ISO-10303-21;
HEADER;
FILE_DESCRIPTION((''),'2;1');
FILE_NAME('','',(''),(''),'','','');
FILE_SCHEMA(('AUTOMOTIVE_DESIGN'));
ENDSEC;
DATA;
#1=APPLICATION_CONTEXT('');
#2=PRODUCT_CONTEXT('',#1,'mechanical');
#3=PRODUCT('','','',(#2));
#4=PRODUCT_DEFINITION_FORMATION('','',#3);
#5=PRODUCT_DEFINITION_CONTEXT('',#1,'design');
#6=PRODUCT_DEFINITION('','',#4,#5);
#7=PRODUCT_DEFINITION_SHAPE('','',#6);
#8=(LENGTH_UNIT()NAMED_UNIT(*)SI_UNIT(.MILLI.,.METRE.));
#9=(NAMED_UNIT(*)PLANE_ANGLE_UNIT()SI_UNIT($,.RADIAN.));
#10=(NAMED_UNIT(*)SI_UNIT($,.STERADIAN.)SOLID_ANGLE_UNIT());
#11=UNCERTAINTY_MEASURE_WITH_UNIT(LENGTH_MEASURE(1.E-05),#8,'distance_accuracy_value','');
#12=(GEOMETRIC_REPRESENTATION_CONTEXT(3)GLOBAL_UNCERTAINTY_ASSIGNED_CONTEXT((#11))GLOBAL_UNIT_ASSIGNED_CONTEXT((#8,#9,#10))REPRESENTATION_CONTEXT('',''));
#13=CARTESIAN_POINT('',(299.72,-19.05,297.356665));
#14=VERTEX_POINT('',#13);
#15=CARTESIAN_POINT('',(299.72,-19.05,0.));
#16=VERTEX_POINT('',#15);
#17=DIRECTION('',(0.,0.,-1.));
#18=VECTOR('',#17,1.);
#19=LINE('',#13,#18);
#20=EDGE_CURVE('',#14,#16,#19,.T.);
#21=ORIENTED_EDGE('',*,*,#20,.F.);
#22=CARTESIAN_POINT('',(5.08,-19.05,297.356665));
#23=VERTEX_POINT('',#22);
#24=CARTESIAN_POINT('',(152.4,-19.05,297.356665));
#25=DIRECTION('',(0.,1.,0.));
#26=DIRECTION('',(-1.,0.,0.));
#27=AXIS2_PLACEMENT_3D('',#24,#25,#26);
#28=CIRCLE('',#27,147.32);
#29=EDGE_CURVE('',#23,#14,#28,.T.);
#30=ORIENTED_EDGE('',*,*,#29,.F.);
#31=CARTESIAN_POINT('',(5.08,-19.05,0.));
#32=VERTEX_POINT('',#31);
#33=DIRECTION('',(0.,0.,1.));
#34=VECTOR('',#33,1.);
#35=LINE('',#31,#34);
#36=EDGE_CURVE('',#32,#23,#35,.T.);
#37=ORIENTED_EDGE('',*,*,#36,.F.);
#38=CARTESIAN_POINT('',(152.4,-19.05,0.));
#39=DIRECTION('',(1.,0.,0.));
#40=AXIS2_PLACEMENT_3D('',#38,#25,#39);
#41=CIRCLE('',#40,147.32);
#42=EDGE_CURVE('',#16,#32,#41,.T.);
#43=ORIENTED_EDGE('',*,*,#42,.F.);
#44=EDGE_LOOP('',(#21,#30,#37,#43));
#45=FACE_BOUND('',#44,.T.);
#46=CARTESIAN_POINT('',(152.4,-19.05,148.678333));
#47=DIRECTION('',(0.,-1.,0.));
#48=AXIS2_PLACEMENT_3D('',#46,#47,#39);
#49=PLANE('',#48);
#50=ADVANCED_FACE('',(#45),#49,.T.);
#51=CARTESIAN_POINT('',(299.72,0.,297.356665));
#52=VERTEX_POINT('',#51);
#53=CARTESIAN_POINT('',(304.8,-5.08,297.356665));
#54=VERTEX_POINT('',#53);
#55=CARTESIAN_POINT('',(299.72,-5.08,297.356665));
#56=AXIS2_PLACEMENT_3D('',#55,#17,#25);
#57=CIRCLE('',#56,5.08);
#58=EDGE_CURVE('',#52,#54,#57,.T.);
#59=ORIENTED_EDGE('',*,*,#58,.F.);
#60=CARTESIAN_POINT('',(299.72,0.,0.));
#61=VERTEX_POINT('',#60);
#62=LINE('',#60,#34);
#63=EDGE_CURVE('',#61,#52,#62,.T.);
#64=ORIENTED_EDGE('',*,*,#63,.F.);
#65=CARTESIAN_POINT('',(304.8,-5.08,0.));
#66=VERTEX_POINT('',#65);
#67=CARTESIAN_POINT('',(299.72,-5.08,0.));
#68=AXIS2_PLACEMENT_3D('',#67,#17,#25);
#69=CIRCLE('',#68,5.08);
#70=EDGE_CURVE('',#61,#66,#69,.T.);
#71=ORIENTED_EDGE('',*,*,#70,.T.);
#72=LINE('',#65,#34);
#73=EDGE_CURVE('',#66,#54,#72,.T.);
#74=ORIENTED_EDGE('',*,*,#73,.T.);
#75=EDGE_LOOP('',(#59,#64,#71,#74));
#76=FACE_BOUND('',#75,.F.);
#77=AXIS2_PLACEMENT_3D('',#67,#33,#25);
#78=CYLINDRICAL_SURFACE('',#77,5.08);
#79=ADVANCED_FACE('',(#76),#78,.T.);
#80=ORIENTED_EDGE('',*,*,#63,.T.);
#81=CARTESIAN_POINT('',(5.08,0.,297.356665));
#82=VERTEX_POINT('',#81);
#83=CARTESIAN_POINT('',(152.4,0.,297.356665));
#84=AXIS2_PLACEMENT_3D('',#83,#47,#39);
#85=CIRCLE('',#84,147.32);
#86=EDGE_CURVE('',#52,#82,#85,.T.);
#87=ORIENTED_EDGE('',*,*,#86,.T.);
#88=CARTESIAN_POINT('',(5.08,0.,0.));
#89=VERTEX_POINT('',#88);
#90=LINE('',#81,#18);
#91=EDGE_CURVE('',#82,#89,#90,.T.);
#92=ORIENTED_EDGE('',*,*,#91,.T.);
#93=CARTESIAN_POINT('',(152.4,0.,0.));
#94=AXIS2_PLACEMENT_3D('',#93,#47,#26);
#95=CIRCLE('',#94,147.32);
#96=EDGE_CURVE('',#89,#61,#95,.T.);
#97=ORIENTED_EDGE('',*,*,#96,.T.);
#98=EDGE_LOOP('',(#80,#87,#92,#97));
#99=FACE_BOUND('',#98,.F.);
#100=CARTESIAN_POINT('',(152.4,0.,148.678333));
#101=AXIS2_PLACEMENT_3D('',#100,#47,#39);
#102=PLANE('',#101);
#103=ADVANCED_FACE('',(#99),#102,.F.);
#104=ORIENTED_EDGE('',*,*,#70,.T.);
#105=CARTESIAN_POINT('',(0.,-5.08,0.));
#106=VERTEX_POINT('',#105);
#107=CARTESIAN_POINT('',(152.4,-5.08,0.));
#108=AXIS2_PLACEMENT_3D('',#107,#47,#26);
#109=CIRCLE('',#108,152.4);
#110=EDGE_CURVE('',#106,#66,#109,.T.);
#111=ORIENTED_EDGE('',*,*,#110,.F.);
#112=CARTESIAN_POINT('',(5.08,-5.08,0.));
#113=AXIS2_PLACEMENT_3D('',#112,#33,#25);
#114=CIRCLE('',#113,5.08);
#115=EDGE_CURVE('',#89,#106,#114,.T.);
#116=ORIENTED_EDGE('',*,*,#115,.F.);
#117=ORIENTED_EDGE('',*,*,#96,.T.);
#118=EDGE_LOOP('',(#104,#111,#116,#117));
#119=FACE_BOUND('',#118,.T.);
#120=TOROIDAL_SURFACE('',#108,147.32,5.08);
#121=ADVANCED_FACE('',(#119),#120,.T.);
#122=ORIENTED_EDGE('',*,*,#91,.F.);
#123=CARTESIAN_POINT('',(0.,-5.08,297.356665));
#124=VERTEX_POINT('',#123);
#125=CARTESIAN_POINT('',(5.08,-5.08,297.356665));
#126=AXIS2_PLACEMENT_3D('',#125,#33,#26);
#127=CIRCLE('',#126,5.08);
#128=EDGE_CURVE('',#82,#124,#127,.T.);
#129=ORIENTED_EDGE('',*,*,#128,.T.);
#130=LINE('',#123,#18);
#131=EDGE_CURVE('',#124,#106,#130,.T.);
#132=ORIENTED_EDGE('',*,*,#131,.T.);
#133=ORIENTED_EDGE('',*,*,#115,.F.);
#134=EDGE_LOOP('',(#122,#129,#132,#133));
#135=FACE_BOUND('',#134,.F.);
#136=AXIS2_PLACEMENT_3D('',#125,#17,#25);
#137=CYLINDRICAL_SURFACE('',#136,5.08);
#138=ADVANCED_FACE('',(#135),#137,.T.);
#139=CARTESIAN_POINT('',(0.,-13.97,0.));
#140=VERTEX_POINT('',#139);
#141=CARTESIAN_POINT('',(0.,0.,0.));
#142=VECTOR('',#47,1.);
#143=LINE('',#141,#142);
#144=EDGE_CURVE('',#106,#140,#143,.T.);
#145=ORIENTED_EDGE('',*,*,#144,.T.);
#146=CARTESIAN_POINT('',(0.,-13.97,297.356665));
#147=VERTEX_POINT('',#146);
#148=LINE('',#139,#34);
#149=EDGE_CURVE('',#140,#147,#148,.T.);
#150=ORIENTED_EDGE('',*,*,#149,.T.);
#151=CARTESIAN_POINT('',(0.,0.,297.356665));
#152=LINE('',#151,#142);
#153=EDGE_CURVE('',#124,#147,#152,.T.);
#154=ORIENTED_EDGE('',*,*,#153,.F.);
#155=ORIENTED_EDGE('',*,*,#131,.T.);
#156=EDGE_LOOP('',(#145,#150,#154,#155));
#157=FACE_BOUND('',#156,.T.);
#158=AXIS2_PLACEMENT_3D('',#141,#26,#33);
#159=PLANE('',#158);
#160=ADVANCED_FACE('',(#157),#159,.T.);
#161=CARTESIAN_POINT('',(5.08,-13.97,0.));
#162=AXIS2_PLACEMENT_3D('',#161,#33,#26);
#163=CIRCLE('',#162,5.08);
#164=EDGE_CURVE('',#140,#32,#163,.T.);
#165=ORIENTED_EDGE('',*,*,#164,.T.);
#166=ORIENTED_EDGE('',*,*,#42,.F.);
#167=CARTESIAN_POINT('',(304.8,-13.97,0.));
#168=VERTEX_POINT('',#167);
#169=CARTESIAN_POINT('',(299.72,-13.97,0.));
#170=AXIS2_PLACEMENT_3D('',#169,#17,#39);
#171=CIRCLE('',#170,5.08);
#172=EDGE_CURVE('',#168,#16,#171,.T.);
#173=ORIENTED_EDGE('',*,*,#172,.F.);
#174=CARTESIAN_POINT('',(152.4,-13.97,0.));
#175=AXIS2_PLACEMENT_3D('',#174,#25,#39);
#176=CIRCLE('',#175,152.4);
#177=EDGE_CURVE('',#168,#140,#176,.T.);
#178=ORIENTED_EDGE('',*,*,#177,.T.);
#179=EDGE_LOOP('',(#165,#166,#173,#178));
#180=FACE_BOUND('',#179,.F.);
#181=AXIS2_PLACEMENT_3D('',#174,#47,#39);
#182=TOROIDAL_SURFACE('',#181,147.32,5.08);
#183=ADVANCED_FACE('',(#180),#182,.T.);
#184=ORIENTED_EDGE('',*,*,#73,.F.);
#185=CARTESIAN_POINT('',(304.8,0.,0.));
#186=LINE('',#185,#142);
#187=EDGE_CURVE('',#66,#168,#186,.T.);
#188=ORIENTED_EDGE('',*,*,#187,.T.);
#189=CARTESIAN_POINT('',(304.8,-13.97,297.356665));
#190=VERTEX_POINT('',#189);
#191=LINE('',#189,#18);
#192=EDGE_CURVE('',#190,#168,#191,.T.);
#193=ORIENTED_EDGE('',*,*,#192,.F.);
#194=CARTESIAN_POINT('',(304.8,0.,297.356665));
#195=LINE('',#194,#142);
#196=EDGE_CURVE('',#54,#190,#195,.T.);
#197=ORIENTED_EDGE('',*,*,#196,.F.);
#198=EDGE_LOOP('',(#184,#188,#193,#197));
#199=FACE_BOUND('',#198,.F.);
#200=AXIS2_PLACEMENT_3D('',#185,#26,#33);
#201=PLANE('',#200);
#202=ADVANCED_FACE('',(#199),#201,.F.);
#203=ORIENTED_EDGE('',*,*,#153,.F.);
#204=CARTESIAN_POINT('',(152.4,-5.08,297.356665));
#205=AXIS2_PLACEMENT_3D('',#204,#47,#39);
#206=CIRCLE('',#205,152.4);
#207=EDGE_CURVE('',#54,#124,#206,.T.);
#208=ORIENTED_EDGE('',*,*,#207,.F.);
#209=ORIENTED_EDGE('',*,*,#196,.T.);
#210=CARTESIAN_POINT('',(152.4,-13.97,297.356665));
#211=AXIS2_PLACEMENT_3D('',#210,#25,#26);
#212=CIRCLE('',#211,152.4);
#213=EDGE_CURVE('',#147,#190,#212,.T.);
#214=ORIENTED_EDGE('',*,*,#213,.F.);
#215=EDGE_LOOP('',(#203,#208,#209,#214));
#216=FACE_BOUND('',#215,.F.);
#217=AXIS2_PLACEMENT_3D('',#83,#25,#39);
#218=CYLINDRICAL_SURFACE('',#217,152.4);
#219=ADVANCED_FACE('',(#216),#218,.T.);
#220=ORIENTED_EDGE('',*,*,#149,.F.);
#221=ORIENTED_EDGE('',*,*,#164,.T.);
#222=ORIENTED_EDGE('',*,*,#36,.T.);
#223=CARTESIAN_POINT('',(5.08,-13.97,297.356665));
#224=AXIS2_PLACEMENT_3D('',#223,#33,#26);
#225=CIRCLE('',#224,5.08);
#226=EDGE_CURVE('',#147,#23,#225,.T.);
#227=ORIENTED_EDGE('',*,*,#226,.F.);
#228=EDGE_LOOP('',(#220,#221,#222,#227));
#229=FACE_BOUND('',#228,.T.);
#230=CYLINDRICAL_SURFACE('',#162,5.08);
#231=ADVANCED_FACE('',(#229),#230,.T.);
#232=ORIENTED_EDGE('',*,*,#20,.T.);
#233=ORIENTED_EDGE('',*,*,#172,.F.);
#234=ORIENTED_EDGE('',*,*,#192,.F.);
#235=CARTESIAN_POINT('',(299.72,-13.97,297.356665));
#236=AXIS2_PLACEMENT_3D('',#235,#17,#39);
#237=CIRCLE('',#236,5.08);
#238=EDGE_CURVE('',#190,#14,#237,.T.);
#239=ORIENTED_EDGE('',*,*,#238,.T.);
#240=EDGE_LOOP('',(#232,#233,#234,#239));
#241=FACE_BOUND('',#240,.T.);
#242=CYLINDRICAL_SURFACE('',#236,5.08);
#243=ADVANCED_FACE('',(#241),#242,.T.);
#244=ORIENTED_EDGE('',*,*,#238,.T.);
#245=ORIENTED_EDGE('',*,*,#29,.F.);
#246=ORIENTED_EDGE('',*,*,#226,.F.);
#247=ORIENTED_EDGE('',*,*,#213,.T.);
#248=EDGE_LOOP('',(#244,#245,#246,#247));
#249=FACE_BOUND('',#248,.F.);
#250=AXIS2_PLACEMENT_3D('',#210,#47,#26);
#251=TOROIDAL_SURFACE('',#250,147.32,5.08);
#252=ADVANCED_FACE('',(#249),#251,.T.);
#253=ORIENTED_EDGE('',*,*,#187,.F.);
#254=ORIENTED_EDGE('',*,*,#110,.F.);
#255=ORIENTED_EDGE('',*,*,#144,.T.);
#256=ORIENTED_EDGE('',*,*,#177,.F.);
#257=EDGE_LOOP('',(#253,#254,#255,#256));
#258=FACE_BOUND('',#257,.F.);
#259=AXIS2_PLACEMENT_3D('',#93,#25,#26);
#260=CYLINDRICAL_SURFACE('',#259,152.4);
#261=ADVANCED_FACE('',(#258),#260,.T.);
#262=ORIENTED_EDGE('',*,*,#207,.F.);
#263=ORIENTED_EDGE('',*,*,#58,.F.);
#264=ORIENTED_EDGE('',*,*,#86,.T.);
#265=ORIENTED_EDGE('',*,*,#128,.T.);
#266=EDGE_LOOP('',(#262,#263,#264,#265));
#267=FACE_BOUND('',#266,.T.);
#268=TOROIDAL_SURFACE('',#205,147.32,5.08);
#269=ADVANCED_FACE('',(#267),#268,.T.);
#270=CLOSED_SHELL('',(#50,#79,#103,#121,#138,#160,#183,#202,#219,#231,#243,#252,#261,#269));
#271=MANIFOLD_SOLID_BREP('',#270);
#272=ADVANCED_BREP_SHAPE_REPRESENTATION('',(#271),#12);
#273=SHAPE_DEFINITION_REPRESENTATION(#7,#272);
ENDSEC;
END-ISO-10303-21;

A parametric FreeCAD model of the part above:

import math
import FreeCAD as App
import Part
import Sketcher

V = App.Vector
Q = App.Units.Quantity


def edges_at(feature, points):
    """Names of the edges that pass closest to the given points."""
    edges = feature.Shape.Edges
    near = lambda p: min(range(len(edges)), key=lambda i: edges[i].distToShape(Part.Vertex(*p))[0])
    return sorted({f"Edge{near(p) + 1}" for p in points})

doc = App.newDocument("Part")
body = doc.addObject("PartDesign::Body", "Body")

# Sketch on XZ plane
sketch1 = doc.addObject("Sketcher::SketchObject", "Sketch")
body.addObject(sketch1)
sketch1.AttachmentSupport = (doc.XZ_Plane, [""])
sketch1.MapMode = "FlatFace"
sketch1.addGeometry([
    Part.ArcOfCircle(Part.Circle(V(152, 457, 0), V(0, 0, 1), 152), math.radians(0), math.radians(180)),
    Part.LineSegment(V(0, 457, 0), V(0, 0, 0)),
    Part.ArcOfCircle(Part.Circle(V(152, 0, 0), V(0, 0, 1), 152), math.radians(180), math.radians(360)),
    Part.LineSegment(V(305, 0, 0), V(305, 457, 0)),
], False)
sketch1.addConstraint([
    Sketcher.Constraint("Tangent", 0, 2, 1, 1),
    Sketcher.Constraint("Tangent", 1, 2, 2, 1),
    Sketcher.Constraint("Tangent", 2, 2, 3, 1),
    Sketcher.Constraint("Tangent", 3, 2, 0, 1),
    Sketcher.Constraint("Vertical", 1),
    Sketcher.Constraint("Vertical", 3),
    Sketcher.Constraint("Coincident", 1, 2, -1, 1),
    Sketcher.Constraint("Radius", 0, Q("6 in")),
    Sketcher.Constraint("DistanceY", 1, 2, 1, 1, Q("18 in")),
])
pad1 = doc.addObject("PartDesign::Pad", "Pad")
body.addObject(pad1)
pad1.Profile = sketch1
pad1.Length = Q("0.75 in")
doc.recompute()

fillet = doc.addObject("PartDesign::Fillet", "Fillet")
body.addObject(fillet)
fillet.Base = (pad1, edges_at(pad1, [
    (0, -19.05, 228.6),
    (152.4, -19.05, 609.6),
    (304.8, -19.05, 228.6),
    (152.4, -19.05, -152.4),
]))
fillet.Radius = Q("0.2 in")
doc.recompute()

fillet2 = doc.addObject("PartDesign::Fillet", "Fillet001")
body.addObject(fillet2)
fillet2.Base = (fillet, edges_at(fillet, [
    (304.8, 0, 228.6),
    (152.4, 0, 609.6),
    (0, 0, 228.6),
    (152.4, 0, -152.4),
]))
fillet2.Radius = Q("0.2 in")
body2 = doc.addObject("PartDesign::Body", "Body001")

# Sketch on XZ plane
sketch2 = doc.addObject("Sketcher::SketchObject", "Sketch001")
body2.addObject(sketch2)
sketch2.AttachmentSupport = (doc.getObject("XZ_Plane001"), [""])
sketch2.MapMode = "FlatFace"
sketch2.addGeometry([
    Part.LineSegment(V(0, 297, 0), V(0, 0, 0)),
    Part.ArcOfCircle(Part.Circle(V(152, 0, 0), V(0, 0, 1), 152), math.radians(180), math.radians(360)),
    Part.LineSegment(V(305, 0, 0), V(305, 297, 0)),
    Part.ArcOfCircle(Part.Circle(V(152, 297, 0), V(0, 0, 1), 152), math.radians(0), math.radians(180)),
], False)
sketch2.addConstraint([
    Sketcher.Constraint("Tangent", 0, 2, 1, 1),
    Sketcher.Constraint("Tangent", 1, 2, 2, 1),
    Sketcher.Constraint("Tangent", 2, 2, 3, 1),
    Sketcher.Constraint("Tangent", 3, 2, 0, 1),
    Sketcher.Constraint("Vertical", 0),
    Sketcher.Constraint("Vertical", 2),
    Sketcher.Constraint("Coincident", 0, 2, -1, 1),
    Sketcher.Constraint("Radius", 1, Q("6 in")),
    Sketcher.Constraint("DistanceY", 0, 2, 0, 1, Q("297.356665 mm")),
])
pad2 = doc.addObject("PartDesign::Pad", "Pad001")
body2.addObject(pad2)
pad2.Profile = sketch2
pad2.Length = Q("0.75 in")
doc.recompute()

fillet3 = doc.addObject("PartDesign::Fillet", "Fillet002")
body2.addObject(fillet3)
fillet3.Base = (pad2, edges_at(pad2, [
    (0, -19.05, 148.678),
    (152.4, -19.05, 449.757),
    (304.8, -19.05, 148.678),
    (152.4, -19.05, -152.4),
]))
fillet3.Radius = Q("0.2 in")
doc.recompute()

fillet4 = doc.addObject("PartDesign::Fillet", "Fillet003")
body2.addObject(fillet4)
fillet4.Base = (fillet3, edges_at(fillet3, [
    (304.8, 0, 148.678),
    (152.4, 0, 449.757),
    (0, 0, 148.678),
    (152.4, 0, -152.4),
]))
fillet4.Radius = Q("0.2 in")
body.Visibility = False

doc.recompute()
